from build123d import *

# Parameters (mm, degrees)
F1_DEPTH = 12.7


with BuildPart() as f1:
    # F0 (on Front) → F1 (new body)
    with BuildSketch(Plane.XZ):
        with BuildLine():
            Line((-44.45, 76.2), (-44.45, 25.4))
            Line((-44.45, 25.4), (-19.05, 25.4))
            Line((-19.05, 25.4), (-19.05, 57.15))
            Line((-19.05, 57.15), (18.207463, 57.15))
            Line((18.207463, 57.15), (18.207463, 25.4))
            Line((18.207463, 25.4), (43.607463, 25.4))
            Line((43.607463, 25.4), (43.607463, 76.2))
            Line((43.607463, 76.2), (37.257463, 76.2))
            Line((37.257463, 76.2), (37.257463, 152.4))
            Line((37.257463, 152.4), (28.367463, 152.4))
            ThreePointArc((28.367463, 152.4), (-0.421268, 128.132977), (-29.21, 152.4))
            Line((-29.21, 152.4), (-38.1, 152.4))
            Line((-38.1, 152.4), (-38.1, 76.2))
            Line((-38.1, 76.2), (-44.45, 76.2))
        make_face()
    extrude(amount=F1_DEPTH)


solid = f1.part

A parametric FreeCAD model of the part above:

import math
import FreeCAD as App
import Part
import Sketcher

V = App.Vector
Q = App.Units.Quantity

doc = App.newDocument("Part")
body = doc.addObject("PartDesign::Body", "Body")

sketch1 = body.newObject("Sketcher::SketchObject", "Sketch")
sketch1.AttachmentSupport = (doc.getObject("XZ_Plane"), [""])
sketch1.MapMode = "FlatFace"
sketch1.addGeometry(Part.LineSegment(V(-44, 76, 0), V(-44, 25, 0)), False)
sketch1.addGeometry(Part.LineSegment(V(-44, 25, 0), V(-19, 25, 0)), False)
sketch1.addGeometry(Part.LineSegment(V(-19, 25, 0), V(-19, 57, 0)), False)
sketch1.addGeometry(Part.LineSegment(V(-19, 57, 0), V(18, 57, 0)), False)
sketch1.addGeometry(Part.LineSegment(V(18, 57, 0), V(18, 25, 0)), False)
sketch1.addGeometry(Part.LineSegment(V(18, 25, 0), V(44, 25, 0)), False)
sketch1.addGeometry(Part.LineSegment(V(44, 25, 0), V(44, 76, 0)), False)
sketch1.addGeometry(Part.LineSegment(V(44, 76, 0), V(37, 76, 0)), False)
sketch1.addGeometry(Part.LineSegment(V(37, 76, 0), V(37, 152, 0)), False)
sketch1.addGeometry(Part.LineSegment(V(37, 152, 0), V(28, 152, 0)), False)
sketch1.addGeometry(Part.ArcOfCircle(Part.Circle(V(0, 157, 0), V(0, 0, 1), 29), math.radians(-170), math.radians(-10)), False)
sketch1.addGeometry(Part.LineSegment(V(-29, 152, 0), V(-38, 152, 0)), False)
sketch1.addGeometry(Part.LineSegment(V(-38, 152, 0), V(-38, 76, 0)), False)
sketch1.addGeometry(Part.LineSegment(V(-38, 76, 0), V(-44, 76, 0)), False)
sketch1.addConstraint(Sketcher.Constraint("Coincident", 0, 2, 1, 1))
sketch1.addConstraint(Sketcher.Constraint("Coincident", 1, 2, 2, 1))
sketch1.addConstraint(Sketcher.Constraint("Coincident", 2, 2, 3, 1))
sketch1.addConstraint(Sketcher.Constraint("Coincident", 3, 2, 4, 1))
sketch1.addConstraint(Sketcher.Constraint("Coincident", 4, 2, 5, 1))
sketch1.addConstraint(Sketcher.Constraint("Coincident", 5, 2, 6, 1))
sketch1.addConstraint(Sketcher.Constraint("Coincident", 6, 2, 7, 1))
sketch1.addConstraint(Sketcher.Constraint("Coincident", 7, 2, 8, 1))
sketch1.addConstraint(Sketcher.Constraint("Coincident", 8, 2, 9, 1))
sketch1.addConstraint(Sketcher.Constraint("Coincident", 9, 2, 10, 2))
sketch1.addConstraint(Sketcher.Constraint("Coincident", 10, 1, 11, 1))
sketch1.addConstraint(Sketcher.Constraint("Coincident", 11, 2, 12, 1))
sketch1.addConstraint(Sketcher.Constraint("Coincident", 12, 2, 13, 1))
sketch1.addConstraint(Sketcher.Constraint("Coincident", 13, 2, 0, 1))
sketch1.addConstraint(Sketcher.Constraint("Vertical", 0))
sketch1.addConstraint(Sketcher.Constraint("Horizontal", 1))
sketch1.addConstraint(Sketcher.Constraint("Vertical", 2))
sketch1.addConstraint(Sketcher.Constraint("Horizontal", 3))
sketch1.addConstraint(Sketcher.Constraint("Vertical", 4))
sketch1.addConstraint(Sketcher.Constraint("Horizontal", 5))
sketch1.addConstraint(Sketcher.Constraint("Vertical", 6))
sketch1.addConstraint(Sketcher.Constraint("Horizontal", 7))
sketch1.addConstraint(Sketcher.Constraint("Vertical", 8))
sketch1.addConstraint(Sketcher.Constraint("Horizontal", 9))
sketch1.addConstraint(Sketcher.Constraint("Horizontal", 11))
sketch1.addConstraint(Sketcher.Constraint("Vertical", 12))
sketch1.addConstraint(Sketcher.Constraint("Horizontal", 13))
sketch1.addConstraint(Sketcher.Constraint("Horizontal", 1, 2, 4, 2))
sketch1.addConstraint(Sketcher.Constraint("Horizontal", 9, 2, 10, 1))
sketch1.addConstraint(Sketcher.Constraint("Horizontal", 7, 2, 12, 2))
sketch1.addConstraint(Sketcher.Constraint("Equal", 1, 5))
sketch1.addConstraint(Sketcher.Constraint("Equal", 9, 11))
sketch1.addConstraint(Sketcher.Constraint("Equal", 7, 13))
sketch1.addConstraint(Sketcher.Constraint("DistanceX", 1, 1, 1, 2, Q("1 in")))
sketch1.addConstraint(Sketcher.Constraint("DistanceY", 0, 2, 0, 1, Q("2 in")))
sketch1.addConstraint(Sketcher.Constraint("DistanceY", 8, 1, 8, 2, Q("3 in")))
sketch1.addConstraint(Sketcher.Constraint("Radius", 10, Q("1.15 in")))
sketch1.addConstraint(Sketcher.Constraint("DistanceY", -1, 1, 0, 2, Q("1 in")))
sketch1.addConstraint(Sketcher.Constraint("DistanceX", 7, 2, 7, 1, Q("0.25 in")))
sketch1.addConstraint(Sketcher.Constraint("DistanceX", 9, 2, 9, 1, Q("0.35 in")))
sketch1.addConstraint(Sketcher.Constraint("DistanceY", 2, 1, 2, 2, Q("1.25 in")))
sketch1.addConstraint(Sketcher.Constraint("DistanceX", 11, 2, -1, 1, Q("1.5 in")))
sketch1.addConstraint(Sketcher.Constraint("DistanceX", 3, 1, 3, 2, Q("37.257463 mm")))
pad1 = body.newObject("PartDesign::Pad", "Pad")
pad1.Profile = sketch1
pad1.Length = Q("0.5 in")

doc.recompute()
